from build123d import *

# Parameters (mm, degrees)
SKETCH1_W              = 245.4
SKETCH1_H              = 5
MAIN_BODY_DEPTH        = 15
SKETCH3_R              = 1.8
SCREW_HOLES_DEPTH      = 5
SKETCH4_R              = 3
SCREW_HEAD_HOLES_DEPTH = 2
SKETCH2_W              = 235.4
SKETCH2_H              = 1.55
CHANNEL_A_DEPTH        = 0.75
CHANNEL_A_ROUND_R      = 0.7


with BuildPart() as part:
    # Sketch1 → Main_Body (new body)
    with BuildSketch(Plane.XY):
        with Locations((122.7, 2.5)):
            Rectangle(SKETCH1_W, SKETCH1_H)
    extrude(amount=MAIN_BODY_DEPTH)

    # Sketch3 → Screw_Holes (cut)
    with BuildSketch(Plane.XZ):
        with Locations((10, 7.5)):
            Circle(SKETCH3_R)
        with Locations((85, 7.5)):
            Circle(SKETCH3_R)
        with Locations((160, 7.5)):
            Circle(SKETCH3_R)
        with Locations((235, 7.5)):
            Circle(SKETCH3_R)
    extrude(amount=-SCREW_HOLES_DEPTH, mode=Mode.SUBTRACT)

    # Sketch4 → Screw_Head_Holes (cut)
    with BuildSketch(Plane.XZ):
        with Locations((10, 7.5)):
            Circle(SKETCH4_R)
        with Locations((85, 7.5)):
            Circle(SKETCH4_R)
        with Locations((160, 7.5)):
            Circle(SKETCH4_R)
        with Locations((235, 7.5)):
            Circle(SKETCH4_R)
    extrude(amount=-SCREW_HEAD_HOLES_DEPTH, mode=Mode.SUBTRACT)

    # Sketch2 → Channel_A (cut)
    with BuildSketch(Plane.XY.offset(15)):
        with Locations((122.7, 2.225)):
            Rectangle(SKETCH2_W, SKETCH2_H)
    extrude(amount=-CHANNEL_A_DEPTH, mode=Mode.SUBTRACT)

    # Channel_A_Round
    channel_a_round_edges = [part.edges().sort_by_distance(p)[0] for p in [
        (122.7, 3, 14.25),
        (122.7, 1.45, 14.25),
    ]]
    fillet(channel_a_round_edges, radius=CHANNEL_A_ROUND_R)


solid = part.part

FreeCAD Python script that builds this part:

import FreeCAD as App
import Part
import Sketcher
from FreeCAD import Vector
Q = App.Units.Quantity


def edges_at(feature, points):
    """Names of the edges that pass closest to the given points."""
    edges = feature.Shape.Edges
    near = lambda p: min(range(len(edges)), key=lambda i: edges[i].distToShape(Part.Vertex(*p))[0])
    return sorted({f"Edge{near(p) + 1}" for p in points})


def add_polygon(sketch, points):
    """Adds a closed chain of lines whose ends are joined by coincident constraints."""
    first, n = sketch.GeometryCount, len(points)
    for a, b in zip(points, points[1:] + points[:1]):
        sketch.addGeometry(Part.LineSegment(App.Vector(*a, 0), App.Vector(*b, 0)), False)
    for i in range(n):
        sketch.addConstraint(Sketcher.Constraint("Coincident", first + i, 2, first + (i + 1) % n, 1))

doc = App.newDocument("Part")
body = doc.addObject("PartDesign::Body", "Body")

# Sketch on XY plane
sketch1 = body.newObject("Sketcher::SketchObject", "Sketch")
sketch1.AttachmentSupport = (doc.getObject("XY_Plane"), [""])
sketch1.MapMode = "FlatFace"
add_polygon(sketch1, [(0, 5), (0, 0), (245, 0), (245, 5)])  # lines 0-3
sketch1.addConstraint([
    Sketcher.Constraint("Vertical", 0),
    Sketcher.Constraint("Horizontal", 1),
    Sketcher.Constraint("Vertical", 2),
    Sketcher.Constraint("Horizontal", 3),
    Sketcher.Constraint("Coincident", 0, 2, -1, 1),
    Sketcher.Constraint("DistanceY", 0, 2, 0, 1, Q("5 mm")),
    Sketcher.Constraint("DistanceX", 1, 1, 1, 2, Q("245.4 mm")),
])
pad1 = body.newObject("PartDesign::Pad", "Pad")
pad1.Profile = sketch1
pad1.Length = 15

# Sketch on XZ plane
sketch2 = body.newObject("Sketcher::SketchObject", "Sketch001")
sketch2.AttachmentSupport = (doc.getObject("XZ_Plane"), [""])
sketch2.MapMode = "FlatFace"
sketch2.addGeometry([
    Part.Circle(Vector(10, 7.5, 0), Vector(0, 0, 1), 1.8),
    Part.Circle(Vector(85, 7.5, 0), Vector(0, 0, 1), 1.8),
    Part.Circle(Vector(160, 7.5, 0), Vector(0, 0, 1), 1.8),
    Part.Circle(Vector(235, 7.5, 0), Vector(0, 0, 1), 1.8),
], False)
sketch2.addConstraint([
    Sketcher.Constraint("Equal", 0, 1),
    Sketcher.Constraint("Equal", 1, 2),
    Sketcher.Constraint("Equal", 2, 3),
    Sketcher.Constraint("Horizontal", 0, 3, 1, 3),
    Sketcher.Constraint("Horizontal", 1, 3, 2, 3),
    Sketcher.Constraint("Horizontal", 2, 3, 3, 3),
    Sketcher.Constraint("Diameter", 0, Q("3.6 mm")),
    Sketcher.Constraint("DistanceX", -1, 1, 0, 3, Q("10 mm")),
    Sketcher.Constraint("DistanceX", -1, 1, 1, 3, Q("85 mm")),
    Sketcher.Constraint("DistanceX", -1, 1, 2, 3, Q("160 mm")),
    Sketcher.Constraint("DistanceX", -1, 1, 3, 3, Q("235 mm")),
    Sketcher.Constraint("DistanceY", -1, 1, 0, 3, Q("7.5 mm")),
])
pocket1 = body.newObject("PartDesign::Pocket", "Pocket")
pocket1.Profile = sketch2
pocket1.Length = 5

# Sketch on XZ plane
sketch3 = body.newObject("Sketcher::SketchObject", "Sketch002")
sketch3.AttachmentSupport = (doc.getObject("XZ_Plane"), [""])
sketch3.MapMode = "FlatFace"
sketch3.addGeometry([
    Part.Circle(Vector(10, 7.5, 0), Vector(0, 0, 1), 3),
    Part.Circle(Vector(85, 7.5, 0), Vector(0, 0, 1), 3),
    Part.Circle(Vector(160, 7.5, 0), Vector(0, 0, 1), 3),
    Part.Circle(Vector(235, 7.5, 0), Vector(0, 0, 1), 3),
], False)
sketch3.addConstraint([
    Sketcher.Constraint("Equal", 0, 1),
    Sketcher.Constraint("Equal", 1, 2),
    Sketcher.Constraint("Equal", 2, 3),
    Sketcher.Constraint("Horizontal", 0, 3, 1, 3),
    Sketcher.Constraint("Horizontal", 1, 3, 2, 3),
    Sketcher.Constraint("Horizontal", 2, 3, 3, 3),
    Sketcher.Constraint("Diameter", 0, Q("6 mm")),
    Sketcher.Constraint("DistanceX", -1, 1, 0, 3, Q("10 mm")),
    Sketcher.Constraint("DistanceX", -1, 1, 1, 3, Q("85 mm")),
    Sketcher.Constraint("DistanceX", -1, 1, 2, 3, Q("160 mm")),
    Sketcher.Constraint("DistanceX", -1, 1, 3, 3, Q("235 mm")),
    Sketcher.Constraint("DistanceY", -1, 1, 0, 3, Q("7.5 mm")),
])
pocket2 = body.newObject("PartDesign::Pocket", "Pocket001")
pocket2.Profile = sketch3
pocket2.Length = 2

# Sketch on XY plane
sketch4 = body.newObject("Sketcher::SketchObject", "Sketch003")
sketch4.AttachmentSupport = (doc.getObject("XY_Plane"), [""])
sketch4.MapMode = "FlatFace"
sketch4.AttachmentOffset = App.Placement(Vector(0, 0, 15), App.Rotation())
add_polygon(sketch4, [(5, 3), (5, 1.4), (240.4, 1.4), (240.4, 3)])  # lines 0-3
sketch4.addConstraint([
    Sketcher.Constraint("Vertical", 0),
    Sketcher.Constraint("Horizontal", 1),
    Sketcher.Constraint("Vertical", 2),
    Sketcher.Constraint("Horizontal", 3),
    Sketcher.Constraint("DistanceX", 1, 1, 1, 2, Q("235.4 mm")),
    Sketcher.Constraint("DistanceX", -1, 1, 0, 2, Q("5 mm")),
    Sketcher.Constraint("DistanceY", -1, 1, 2, 2, Q("3 mm")),
    Sketcher.Constraint("DistanceY", 0, 2, 0, 1, Q("1.55 mm")),
])
pocket3 = body.newObject("PartDesign::Pocket", "Pocket002")
pocket3.Profile = sketch4
pocket3.Length = 0.75
doc.recompute()

fillet = body.newObject("PartDesign::Fillet", "Fillet")
fillet.Base = (pocket3, edges_at(pocket3, [(122.7, 3, 14.25), (122.7, 1.45, 14.25)]))
fillet.Radius = 0.7

doc.recompute()
